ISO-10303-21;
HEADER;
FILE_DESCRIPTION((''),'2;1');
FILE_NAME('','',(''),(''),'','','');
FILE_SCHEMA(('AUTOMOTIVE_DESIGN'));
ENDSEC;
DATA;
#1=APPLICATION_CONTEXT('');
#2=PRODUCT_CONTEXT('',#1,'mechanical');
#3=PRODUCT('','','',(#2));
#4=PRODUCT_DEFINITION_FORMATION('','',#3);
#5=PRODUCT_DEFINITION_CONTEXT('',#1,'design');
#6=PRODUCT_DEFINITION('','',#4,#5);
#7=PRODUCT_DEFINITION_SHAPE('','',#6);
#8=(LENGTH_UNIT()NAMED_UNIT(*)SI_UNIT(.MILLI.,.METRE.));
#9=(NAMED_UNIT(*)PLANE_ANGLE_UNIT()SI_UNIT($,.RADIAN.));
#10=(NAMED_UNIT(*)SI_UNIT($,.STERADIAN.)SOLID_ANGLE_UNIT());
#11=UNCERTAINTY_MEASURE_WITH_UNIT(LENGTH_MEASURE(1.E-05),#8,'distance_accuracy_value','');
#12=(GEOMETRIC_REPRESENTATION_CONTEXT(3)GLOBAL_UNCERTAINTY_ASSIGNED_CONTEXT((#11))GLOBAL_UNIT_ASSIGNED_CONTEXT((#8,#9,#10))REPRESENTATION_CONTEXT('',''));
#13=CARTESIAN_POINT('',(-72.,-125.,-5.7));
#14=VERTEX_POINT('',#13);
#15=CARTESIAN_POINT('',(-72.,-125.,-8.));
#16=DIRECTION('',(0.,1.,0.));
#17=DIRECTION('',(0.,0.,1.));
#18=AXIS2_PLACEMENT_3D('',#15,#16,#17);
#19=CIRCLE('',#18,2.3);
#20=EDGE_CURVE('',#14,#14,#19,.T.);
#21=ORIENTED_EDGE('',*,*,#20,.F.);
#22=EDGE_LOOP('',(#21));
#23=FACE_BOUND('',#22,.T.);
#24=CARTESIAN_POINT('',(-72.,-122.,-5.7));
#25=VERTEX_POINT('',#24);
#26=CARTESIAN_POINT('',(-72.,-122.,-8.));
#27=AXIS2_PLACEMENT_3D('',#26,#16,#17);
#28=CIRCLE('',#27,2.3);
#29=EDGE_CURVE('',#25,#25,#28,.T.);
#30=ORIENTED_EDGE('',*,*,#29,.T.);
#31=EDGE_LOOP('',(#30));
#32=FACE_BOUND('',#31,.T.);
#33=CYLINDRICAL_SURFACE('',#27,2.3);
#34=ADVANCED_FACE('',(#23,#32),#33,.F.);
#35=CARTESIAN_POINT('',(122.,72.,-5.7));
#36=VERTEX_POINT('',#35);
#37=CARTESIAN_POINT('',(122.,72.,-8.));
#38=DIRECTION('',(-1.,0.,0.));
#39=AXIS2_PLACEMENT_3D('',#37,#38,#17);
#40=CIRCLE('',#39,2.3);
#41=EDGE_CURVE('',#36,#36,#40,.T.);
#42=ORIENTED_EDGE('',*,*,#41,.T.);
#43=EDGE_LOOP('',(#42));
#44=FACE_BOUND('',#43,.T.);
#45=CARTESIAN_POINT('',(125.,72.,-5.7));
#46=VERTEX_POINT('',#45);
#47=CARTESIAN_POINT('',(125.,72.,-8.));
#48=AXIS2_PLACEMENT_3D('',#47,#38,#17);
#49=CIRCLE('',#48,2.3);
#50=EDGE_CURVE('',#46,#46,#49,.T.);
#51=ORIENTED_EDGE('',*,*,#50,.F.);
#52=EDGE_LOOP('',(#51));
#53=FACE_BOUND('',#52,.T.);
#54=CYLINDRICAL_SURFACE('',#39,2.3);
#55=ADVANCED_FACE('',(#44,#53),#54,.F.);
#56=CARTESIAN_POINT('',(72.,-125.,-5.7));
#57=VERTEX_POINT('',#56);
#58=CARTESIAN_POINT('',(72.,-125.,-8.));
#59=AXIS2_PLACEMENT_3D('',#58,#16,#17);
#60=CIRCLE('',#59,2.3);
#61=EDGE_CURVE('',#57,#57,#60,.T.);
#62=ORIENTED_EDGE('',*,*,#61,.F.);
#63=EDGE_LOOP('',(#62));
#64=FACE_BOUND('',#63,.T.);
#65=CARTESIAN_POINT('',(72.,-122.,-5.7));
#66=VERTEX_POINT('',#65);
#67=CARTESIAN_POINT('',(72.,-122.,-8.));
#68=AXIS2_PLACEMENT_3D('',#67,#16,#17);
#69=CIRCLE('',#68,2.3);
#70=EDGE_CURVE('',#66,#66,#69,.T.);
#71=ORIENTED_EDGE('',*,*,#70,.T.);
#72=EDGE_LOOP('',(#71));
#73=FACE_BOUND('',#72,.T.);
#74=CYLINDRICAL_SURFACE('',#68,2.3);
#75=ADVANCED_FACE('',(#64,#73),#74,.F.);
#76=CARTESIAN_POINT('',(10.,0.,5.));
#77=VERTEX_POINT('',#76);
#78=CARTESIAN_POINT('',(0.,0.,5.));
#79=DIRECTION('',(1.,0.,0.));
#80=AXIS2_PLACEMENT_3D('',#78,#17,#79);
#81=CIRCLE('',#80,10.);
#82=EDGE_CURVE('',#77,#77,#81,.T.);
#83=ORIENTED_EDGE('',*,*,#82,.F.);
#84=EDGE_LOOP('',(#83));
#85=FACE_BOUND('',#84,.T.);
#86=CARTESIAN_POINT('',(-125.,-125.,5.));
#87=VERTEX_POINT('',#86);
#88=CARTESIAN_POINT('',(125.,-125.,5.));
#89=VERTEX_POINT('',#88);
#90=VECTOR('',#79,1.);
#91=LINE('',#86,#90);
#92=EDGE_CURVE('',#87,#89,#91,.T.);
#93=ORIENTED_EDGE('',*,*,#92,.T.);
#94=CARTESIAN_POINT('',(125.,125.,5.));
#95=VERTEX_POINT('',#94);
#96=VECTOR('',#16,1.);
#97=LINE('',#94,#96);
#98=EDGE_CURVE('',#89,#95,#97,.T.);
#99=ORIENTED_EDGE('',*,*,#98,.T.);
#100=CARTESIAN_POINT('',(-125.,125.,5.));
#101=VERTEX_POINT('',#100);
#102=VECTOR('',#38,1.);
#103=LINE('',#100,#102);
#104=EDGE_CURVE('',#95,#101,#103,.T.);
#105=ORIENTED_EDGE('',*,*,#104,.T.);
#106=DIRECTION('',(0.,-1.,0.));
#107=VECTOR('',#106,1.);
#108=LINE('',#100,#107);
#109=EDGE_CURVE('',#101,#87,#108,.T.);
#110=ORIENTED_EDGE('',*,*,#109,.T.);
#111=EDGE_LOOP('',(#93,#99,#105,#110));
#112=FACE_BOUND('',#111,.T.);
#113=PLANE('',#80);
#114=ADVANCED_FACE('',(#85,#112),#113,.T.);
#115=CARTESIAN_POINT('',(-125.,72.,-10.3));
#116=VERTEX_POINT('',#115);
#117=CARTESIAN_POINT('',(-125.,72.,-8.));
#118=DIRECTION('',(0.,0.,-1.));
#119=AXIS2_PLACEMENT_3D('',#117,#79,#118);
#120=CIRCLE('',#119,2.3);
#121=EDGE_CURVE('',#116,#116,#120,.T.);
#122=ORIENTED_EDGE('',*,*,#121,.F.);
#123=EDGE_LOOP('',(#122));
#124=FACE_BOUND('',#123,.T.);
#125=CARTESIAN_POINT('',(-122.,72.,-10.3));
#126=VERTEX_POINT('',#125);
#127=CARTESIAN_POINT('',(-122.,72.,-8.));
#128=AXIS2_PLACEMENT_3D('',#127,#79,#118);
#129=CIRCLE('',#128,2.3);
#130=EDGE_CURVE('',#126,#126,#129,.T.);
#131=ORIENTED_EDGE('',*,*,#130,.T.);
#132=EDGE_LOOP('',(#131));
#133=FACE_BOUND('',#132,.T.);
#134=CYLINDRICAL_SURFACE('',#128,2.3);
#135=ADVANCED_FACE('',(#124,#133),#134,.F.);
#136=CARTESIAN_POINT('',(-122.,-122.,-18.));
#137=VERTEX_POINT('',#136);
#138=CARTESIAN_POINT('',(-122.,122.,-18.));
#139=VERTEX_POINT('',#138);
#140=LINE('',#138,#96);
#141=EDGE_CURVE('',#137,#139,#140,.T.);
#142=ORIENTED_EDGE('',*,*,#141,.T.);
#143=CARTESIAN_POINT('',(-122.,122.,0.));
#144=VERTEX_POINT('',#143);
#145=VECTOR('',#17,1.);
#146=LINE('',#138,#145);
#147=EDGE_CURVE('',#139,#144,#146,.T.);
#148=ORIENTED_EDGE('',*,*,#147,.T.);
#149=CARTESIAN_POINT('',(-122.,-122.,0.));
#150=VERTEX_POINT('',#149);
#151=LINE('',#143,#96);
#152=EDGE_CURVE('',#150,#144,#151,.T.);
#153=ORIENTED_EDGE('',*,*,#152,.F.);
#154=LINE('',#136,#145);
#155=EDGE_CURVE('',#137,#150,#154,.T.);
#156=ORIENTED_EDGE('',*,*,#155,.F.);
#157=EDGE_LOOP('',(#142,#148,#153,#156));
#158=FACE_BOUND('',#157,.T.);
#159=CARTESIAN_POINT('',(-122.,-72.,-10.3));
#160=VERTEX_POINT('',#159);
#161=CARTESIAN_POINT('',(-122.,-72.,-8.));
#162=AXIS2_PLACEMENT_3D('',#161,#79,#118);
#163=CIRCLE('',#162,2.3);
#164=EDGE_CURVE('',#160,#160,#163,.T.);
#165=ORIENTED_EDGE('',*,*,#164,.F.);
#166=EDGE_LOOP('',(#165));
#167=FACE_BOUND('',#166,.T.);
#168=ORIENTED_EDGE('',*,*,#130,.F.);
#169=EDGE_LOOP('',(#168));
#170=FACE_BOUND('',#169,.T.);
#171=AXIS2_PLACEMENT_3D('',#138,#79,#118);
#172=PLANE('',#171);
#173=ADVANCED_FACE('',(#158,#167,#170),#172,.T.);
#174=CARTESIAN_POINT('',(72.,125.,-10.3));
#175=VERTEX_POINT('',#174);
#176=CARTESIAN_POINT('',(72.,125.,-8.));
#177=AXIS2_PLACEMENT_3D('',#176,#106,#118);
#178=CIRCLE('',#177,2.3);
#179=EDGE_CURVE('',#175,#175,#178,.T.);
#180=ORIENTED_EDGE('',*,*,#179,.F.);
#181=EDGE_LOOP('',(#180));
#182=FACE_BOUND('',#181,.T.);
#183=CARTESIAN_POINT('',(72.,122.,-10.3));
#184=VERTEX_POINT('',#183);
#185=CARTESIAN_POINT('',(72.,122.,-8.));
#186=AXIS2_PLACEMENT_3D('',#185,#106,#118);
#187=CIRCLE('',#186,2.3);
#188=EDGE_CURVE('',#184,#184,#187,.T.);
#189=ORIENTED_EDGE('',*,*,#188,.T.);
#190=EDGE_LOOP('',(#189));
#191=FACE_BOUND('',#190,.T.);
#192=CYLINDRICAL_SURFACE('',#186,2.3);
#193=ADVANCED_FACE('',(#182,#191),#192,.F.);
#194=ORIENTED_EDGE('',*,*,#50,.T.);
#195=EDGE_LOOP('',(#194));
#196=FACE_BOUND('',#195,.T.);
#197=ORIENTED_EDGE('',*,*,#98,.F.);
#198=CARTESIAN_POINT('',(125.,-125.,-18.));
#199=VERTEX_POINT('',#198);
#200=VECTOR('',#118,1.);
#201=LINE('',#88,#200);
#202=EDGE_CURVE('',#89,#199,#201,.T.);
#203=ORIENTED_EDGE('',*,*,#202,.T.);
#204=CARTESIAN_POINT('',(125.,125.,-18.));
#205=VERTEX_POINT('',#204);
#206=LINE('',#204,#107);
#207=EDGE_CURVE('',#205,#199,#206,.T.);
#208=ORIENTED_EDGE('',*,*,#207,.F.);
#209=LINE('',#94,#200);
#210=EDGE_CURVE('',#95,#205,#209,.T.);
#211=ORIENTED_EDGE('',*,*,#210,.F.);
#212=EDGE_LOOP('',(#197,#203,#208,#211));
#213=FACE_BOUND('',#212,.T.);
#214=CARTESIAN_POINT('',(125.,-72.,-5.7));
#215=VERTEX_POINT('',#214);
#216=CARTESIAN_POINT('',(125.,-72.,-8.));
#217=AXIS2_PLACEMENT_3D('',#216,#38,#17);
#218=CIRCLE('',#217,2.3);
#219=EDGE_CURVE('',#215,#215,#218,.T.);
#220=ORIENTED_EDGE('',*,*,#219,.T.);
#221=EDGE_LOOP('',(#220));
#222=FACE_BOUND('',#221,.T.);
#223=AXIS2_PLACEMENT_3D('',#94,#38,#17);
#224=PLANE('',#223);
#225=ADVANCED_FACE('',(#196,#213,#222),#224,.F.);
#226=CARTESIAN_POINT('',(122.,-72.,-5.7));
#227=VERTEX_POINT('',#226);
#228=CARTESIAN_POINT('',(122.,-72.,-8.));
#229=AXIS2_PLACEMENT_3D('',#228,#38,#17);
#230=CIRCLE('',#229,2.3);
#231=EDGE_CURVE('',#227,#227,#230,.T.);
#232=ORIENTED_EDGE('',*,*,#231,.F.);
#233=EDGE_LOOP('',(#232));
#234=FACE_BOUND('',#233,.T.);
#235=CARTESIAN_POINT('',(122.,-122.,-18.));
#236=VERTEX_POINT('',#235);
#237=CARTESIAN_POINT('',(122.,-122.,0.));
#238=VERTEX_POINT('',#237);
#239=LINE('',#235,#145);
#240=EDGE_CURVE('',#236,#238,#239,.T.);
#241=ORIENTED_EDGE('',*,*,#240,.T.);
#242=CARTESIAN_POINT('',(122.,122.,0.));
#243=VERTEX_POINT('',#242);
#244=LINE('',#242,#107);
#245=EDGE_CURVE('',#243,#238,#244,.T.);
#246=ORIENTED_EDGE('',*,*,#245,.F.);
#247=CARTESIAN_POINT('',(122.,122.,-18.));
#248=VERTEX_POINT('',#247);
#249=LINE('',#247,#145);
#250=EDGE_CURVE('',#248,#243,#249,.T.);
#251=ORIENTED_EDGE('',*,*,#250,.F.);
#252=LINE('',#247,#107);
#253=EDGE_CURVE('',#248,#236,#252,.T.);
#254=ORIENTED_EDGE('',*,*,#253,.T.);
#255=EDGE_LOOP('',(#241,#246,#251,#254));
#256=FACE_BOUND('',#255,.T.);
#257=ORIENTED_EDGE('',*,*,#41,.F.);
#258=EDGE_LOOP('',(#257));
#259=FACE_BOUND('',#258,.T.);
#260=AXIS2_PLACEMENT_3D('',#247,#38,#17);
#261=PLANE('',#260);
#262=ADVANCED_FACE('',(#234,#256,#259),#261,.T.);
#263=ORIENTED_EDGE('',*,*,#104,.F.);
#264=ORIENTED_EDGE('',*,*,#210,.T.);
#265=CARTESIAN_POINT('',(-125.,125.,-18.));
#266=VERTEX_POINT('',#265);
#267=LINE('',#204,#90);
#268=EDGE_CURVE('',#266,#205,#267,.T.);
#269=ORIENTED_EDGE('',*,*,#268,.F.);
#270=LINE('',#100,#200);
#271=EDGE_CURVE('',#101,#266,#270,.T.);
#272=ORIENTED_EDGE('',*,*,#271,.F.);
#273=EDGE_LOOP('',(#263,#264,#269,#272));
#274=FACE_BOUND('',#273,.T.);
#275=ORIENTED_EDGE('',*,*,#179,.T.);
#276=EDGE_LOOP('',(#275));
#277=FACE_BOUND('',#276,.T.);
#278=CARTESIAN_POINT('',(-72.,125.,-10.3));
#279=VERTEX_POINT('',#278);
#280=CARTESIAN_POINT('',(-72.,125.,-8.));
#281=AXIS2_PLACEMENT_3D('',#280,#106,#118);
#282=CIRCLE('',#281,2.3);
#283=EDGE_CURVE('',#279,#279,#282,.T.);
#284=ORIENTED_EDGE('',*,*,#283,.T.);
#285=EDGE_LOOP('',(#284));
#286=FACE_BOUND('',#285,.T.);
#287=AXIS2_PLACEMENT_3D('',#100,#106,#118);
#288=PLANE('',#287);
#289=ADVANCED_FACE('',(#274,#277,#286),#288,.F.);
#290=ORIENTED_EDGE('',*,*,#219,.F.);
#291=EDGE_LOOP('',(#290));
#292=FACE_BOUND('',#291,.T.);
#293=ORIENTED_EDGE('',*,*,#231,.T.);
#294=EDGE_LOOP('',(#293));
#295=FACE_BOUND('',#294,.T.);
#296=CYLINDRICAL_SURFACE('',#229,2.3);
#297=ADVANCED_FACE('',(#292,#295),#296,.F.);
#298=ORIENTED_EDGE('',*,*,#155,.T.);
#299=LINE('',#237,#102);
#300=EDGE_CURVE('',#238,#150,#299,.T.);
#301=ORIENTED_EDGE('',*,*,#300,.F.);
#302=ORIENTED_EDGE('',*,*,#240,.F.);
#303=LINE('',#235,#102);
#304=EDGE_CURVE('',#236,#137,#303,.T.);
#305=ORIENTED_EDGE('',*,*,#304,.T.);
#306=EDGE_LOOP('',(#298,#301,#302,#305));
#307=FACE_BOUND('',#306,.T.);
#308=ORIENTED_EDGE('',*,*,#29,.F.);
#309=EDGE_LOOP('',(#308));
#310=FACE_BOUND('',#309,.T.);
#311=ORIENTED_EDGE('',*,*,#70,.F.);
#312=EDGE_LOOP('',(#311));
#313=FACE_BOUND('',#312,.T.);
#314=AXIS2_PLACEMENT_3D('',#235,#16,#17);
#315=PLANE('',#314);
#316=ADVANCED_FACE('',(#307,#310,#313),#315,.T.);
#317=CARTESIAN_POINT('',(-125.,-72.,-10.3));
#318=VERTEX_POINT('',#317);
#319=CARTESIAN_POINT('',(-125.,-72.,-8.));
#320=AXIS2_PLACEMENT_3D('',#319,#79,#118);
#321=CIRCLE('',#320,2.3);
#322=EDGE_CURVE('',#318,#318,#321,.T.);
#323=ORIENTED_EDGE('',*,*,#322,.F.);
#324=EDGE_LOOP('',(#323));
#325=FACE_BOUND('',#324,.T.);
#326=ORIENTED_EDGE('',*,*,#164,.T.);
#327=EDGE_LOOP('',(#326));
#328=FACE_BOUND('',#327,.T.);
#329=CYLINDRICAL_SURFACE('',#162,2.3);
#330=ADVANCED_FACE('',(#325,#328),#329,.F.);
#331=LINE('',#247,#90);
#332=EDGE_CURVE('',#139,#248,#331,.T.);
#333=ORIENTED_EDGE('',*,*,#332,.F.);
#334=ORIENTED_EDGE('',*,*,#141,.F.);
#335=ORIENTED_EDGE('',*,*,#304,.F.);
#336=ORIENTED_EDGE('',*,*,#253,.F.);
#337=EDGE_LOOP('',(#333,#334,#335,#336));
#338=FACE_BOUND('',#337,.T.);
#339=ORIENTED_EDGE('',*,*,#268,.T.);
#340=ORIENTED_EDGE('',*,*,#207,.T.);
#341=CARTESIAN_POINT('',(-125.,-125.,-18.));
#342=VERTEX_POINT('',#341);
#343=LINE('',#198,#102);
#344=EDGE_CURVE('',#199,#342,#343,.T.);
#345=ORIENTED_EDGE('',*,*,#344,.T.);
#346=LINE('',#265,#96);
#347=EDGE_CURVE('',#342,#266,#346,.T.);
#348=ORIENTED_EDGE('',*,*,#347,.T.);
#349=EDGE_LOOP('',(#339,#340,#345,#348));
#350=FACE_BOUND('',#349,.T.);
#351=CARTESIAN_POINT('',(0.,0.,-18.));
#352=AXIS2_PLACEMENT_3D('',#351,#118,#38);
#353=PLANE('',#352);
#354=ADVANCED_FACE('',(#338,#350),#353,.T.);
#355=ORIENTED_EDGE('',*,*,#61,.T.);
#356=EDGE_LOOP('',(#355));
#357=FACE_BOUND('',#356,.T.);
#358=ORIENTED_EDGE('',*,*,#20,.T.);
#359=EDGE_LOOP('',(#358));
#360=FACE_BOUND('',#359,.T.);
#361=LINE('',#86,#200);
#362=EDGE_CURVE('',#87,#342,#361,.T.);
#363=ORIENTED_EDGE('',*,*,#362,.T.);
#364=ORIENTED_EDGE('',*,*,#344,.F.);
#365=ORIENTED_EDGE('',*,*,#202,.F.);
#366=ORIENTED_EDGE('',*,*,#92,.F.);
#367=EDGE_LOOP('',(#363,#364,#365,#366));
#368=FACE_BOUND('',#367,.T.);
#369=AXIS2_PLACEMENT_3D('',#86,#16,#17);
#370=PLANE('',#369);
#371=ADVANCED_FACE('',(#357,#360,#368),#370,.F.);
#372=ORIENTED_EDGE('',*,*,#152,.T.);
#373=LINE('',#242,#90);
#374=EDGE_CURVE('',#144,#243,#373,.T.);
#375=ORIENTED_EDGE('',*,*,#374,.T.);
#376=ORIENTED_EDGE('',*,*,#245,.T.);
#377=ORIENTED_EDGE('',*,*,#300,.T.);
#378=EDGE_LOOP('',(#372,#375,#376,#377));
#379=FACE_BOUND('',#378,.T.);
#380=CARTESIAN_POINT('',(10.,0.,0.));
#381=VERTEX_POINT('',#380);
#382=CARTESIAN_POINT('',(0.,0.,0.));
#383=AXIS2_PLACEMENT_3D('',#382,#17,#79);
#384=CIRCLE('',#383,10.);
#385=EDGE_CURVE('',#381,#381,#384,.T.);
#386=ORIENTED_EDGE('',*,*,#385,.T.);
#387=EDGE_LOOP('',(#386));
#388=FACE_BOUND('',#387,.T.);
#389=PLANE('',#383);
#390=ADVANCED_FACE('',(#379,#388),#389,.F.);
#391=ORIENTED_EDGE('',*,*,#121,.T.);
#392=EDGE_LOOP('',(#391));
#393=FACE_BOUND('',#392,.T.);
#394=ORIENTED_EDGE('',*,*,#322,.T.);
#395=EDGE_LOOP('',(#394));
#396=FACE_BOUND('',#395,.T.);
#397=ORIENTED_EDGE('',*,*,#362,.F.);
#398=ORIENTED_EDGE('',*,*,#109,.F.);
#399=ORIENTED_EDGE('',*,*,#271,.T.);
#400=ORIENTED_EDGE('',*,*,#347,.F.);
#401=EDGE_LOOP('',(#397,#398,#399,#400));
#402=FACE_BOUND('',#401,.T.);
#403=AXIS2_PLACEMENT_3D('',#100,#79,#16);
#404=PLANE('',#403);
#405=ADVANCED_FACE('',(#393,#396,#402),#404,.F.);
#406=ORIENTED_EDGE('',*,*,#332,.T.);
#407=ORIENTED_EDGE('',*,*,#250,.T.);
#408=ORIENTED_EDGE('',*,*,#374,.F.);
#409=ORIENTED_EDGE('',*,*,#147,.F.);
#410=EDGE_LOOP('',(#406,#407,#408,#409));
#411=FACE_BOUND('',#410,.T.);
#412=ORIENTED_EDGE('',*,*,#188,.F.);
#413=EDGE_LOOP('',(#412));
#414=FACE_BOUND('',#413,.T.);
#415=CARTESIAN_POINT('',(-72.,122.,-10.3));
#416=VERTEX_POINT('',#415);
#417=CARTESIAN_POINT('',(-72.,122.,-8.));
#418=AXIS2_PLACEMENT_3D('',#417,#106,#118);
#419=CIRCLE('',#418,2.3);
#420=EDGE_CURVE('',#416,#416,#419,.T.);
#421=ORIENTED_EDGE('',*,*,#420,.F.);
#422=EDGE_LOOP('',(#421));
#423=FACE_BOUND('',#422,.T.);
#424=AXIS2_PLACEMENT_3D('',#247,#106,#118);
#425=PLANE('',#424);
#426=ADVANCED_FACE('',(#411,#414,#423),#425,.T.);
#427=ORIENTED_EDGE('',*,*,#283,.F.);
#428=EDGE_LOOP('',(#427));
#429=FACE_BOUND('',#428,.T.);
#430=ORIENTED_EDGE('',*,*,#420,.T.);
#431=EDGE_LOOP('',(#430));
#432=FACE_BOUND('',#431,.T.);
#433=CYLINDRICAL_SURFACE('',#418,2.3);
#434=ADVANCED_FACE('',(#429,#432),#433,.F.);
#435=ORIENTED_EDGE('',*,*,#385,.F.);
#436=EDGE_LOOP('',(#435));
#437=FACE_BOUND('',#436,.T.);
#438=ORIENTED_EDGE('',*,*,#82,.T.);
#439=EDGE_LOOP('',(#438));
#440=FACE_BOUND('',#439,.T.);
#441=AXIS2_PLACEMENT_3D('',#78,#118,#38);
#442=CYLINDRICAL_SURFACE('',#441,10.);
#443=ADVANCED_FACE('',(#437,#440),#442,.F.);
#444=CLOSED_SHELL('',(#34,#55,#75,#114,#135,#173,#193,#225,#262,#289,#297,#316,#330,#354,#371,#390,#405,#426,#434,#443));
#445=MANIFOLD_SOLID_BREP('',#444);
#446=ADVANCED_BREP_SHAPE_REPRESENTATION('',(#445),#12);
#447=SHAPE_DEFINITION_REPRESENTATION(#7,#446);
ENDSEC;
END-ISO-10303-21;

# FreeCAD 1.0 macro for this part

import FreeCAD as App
import Part
import Sketcher
from FreeCAD import Vector
Q = App.Units.Quantity

doc = App.newDocument("Part")
body = doc.addObject("PartDesign::Body", "Body")

# Sketch on XY plane
sketch1 = body.newObject("Sketcher::SketchObject", "Sketch")
sketch1.AttachmentSupport = (doc.getObject("XY_Plane"), [""])
sketch1.MapMode = "FlatFace"
sketch1.addGeometry(Part.LineSegment(Vector(-125, 125, 0), Vector(-125, -125, 0)), False)
sketch1.addGeometry(Part.LineSegment(Vector(-125, -125, 0), Vector(125, -125, 0)), False)
sketch1.addGeometry(Part.LineSegment(Vector(125, -125, 0), Vector(125, 125, 0)), False)
sketch1.addGeometry(Part.LineSegment(Vector(125, 125, 0), Vector(-125, 125, 0)), False)
sketch1.addGeometry(Part.Circle(Vector(0, 0, 0), Vector(0, 0, 1), 10), False)
sketch1.addConstraint(Sketcher.Constraint("Coincident", 0, 2, 1, 1))
sketch1.addConstraint(Sketcher.Constraint("Coincident", 1, 2, 2, 1))
sketch1.addConstraint(Sketcher.Constraint("Coincident", 2, 2, 3, 1))
sketch1.addConstraint(Sketcher.Constraint("Coincident", 3, 2, 0, 1))
sketch1.addConstraint(Sketcher.Constraint("Vertical", 0))
sketch1.addConstraint(Sketcher.Constraint("Horizontal", 1))
sketch1.addConstraint(Sketcher.Constraint("Vertical", 2))
sketch1.addConstraint(Sketcher.Constraint("Horizontal", 3))
sketch1.addConstraint(Sketcher.Constraint("Coincident", 4, 3, -1, 1))
sketch1.addConstraint(Sketcher.Constraint("Symmetric", 0, 2, 2, 2, -1, 1))
sketch1.addConstraint(Sketcher.Constraint("Equal", 3, 0))
sketch1.addConstraint(Sketcher.Constraint("Diameter", 4, Q("20 mm")))
sketch1.addConstraint(Sketcher.Constraint("DistanceX", 1, 1, 1, 2, Q("250 mm")))
pad1 = body.newObject("PartDesign::Pad", "Pad")
pad1.Profile = sketch1
pad1.Length = 5

# Sketch on XY plane
sketch2 = body.newObject("Sketcher::SketchObject", "Sketch001")
sketch2.AttachmentSupport = (doc.getObject("XY_Plane"), [""])
sketch2.MapMode = "FlatFace"
sketch2.addGeometry(Part.LineSegment(Vector(125, 125, 0), Vector(125, -125, 0)), False)
sketch2.addGeometry(Part.LineSegment(Vector(125, -125, 0), Vector(-125, -125, 0)), False)
sketch2.addGeometry(Part.LineSegment(Vector(-125, -125, 0), Vector(-125, 125, 0)), False)
sketch2.addGeometry(Part.LineSegment(Vector(-125, 125, 0), Vector(125, 125, 0)), False)
sketch2.addGeometry(Part.LineSegment(Vector(-122, -122, 0), Vector(122, -122, 0)), False)
sketch2.addGeometry(Part.LineSegment(Vector(122, -122, 0), Vector(122, 122, 0)), False)
sketch2.addGeometry(Part.LineSegment(Vector(122, 122, 0), Vector(-122, 122, 0)), False)
sketch2.addGeometry(Part.LineSegment(Vector(-122, 122, 0), Vector(-122, -122, 0)), False)
sketch2.addConstraint(Sketcher.Constraint("Coincident", 0, 2, 1, 1))
sketch2.addConstraint(Sketcher.Constraint("Coincident", 1, 2, 2, 1))
sketch2.addConstraint(Sketcher.Constraint("Coincident", 2, 2, 3, 1))
sketch2.addConstraint(Sketcher.Constraint("Coincident", 3, 2, 0, 1))
sketch2.addConstraint(Sketcher.Constraint("Coincident", 4, 2, 5, 1))
sketch2.addConstraint(Sketcher.Constraint("Coincident", 5, 2, 6, 1))
sketch2.addConstraint(Sketcher.Constraint("Coincident", 6, 2, 7, 1))
sketch2.addConstraint(Sketcher.Constraint("Coincident", 7, 2, 4, 1))
sketch2.addConstraint(Sketcher.Constraint("Vertical", 0))
sketch2.addConstraint(Sketcher.Constraint("Horizontal", 1))
sketch2.addConstraint(Sketcher.Constraint("Vertical", 2))
sketch2.addConstraint(Sketcher.Constraint("Horizontal", 3))
sketch2.addConstraint(Sketcher.Constraint("Horizontal", 4))
sketch2.addConstraint(Sketcher.Constraint("Vertical", 5))
sketch2.addConstraint(Sketcher.Constraint("Horizontal", 6))
sketch2.addConstraint(Sketcher.Constraint("Vertical", 7))
sketch2.addConstraint(Sketcher.Constraint("Symmetric", 0, 2, 2, 2, -1, 1))
sketch2.addConstraint(Sketcher.Constraint("Symmetric", 4, 2, 6, 2, -1, 1))
sketch2.addConstraint(Sketcher.Constraint("Equal", 3, 0))
sketch2.addConstraint(Sketcher.Constraint("Equal", 6, 5))
sketch2.addConstraint(Sketcher.Constraint("DistanceX", 1, 2, 1, 1, Q("250 mm")))
sketch2.addConstraint(Sketcher.Constraint("DistanceX", 4, 1, 4, 2, Q("244 mm")))
pad2 = body.newObject("PartDesign::Pad", "Pad001")
pad2.Profile = sketch2
pad2.Length = 18
pad2.Reversed = True

# Sketch on YZ plane
sketch3 = body.newObject("Sketcher::SketchObject", "Sketch002")
sketch3.AttachmentSupport = (doc.getObject("YZ_Plane"), [""])
sketch3.MapMode = "FlatFace"
sketch3.AttachmentOffset = App.Placement(Vector(0, 0, 122), App.Rotation())
sketch3.addGeometry(Part.Circle(Vector(72, -8, 0), Vector(0, 0, 1), 2.3), False)
sketch3.addGeometry(Part.Circle(Vector(-72, -8, 0), Vector(0, 0, 1), 2.3), False)
sketch3.addConstraint(Sketcher.Constraint("Equal", 0, 1))
sketch3.addConstraint(Sketcher.Constraint("Symmetric", 0, 3, 1, 3, -2))
sketch3.addConstraint(Sketcher.Constraint("Diameter", 0, Q("4.6 mm")))
sketch3.addConstraint(Sketcher.Constraint("DistanceX", -1, 1, 0, 3, Q("72 mm")))
sketch3.addConstraint(Sketcher.Constraint("DistanceY", 0, 3, -1, 1, Q("8 mm")))
doc.recompute()
hole = body.newObject("PartDesign::Hole", "Hole")
hole.Profile = sketch3
hole.ThreadType = "None"
hole.Diameter = 4.6
hole.DepthType = "Dimension"
hole.Depth = 3
hole.DrillPoint = "Flat"
hole.Reversed = True
doc.recompute()

polarpattern = body.newObject("PartDesign::PolarPattern", "PolarPattern")
polarpattern.Originals = [hole]
polarpattern.Axis = (doc.getObject("Z_Axis"), [""])
polarpattern.Angle = 360
polarpattern.Occurrences = 4
body.Tip = polarpattern

doc.recompute()
